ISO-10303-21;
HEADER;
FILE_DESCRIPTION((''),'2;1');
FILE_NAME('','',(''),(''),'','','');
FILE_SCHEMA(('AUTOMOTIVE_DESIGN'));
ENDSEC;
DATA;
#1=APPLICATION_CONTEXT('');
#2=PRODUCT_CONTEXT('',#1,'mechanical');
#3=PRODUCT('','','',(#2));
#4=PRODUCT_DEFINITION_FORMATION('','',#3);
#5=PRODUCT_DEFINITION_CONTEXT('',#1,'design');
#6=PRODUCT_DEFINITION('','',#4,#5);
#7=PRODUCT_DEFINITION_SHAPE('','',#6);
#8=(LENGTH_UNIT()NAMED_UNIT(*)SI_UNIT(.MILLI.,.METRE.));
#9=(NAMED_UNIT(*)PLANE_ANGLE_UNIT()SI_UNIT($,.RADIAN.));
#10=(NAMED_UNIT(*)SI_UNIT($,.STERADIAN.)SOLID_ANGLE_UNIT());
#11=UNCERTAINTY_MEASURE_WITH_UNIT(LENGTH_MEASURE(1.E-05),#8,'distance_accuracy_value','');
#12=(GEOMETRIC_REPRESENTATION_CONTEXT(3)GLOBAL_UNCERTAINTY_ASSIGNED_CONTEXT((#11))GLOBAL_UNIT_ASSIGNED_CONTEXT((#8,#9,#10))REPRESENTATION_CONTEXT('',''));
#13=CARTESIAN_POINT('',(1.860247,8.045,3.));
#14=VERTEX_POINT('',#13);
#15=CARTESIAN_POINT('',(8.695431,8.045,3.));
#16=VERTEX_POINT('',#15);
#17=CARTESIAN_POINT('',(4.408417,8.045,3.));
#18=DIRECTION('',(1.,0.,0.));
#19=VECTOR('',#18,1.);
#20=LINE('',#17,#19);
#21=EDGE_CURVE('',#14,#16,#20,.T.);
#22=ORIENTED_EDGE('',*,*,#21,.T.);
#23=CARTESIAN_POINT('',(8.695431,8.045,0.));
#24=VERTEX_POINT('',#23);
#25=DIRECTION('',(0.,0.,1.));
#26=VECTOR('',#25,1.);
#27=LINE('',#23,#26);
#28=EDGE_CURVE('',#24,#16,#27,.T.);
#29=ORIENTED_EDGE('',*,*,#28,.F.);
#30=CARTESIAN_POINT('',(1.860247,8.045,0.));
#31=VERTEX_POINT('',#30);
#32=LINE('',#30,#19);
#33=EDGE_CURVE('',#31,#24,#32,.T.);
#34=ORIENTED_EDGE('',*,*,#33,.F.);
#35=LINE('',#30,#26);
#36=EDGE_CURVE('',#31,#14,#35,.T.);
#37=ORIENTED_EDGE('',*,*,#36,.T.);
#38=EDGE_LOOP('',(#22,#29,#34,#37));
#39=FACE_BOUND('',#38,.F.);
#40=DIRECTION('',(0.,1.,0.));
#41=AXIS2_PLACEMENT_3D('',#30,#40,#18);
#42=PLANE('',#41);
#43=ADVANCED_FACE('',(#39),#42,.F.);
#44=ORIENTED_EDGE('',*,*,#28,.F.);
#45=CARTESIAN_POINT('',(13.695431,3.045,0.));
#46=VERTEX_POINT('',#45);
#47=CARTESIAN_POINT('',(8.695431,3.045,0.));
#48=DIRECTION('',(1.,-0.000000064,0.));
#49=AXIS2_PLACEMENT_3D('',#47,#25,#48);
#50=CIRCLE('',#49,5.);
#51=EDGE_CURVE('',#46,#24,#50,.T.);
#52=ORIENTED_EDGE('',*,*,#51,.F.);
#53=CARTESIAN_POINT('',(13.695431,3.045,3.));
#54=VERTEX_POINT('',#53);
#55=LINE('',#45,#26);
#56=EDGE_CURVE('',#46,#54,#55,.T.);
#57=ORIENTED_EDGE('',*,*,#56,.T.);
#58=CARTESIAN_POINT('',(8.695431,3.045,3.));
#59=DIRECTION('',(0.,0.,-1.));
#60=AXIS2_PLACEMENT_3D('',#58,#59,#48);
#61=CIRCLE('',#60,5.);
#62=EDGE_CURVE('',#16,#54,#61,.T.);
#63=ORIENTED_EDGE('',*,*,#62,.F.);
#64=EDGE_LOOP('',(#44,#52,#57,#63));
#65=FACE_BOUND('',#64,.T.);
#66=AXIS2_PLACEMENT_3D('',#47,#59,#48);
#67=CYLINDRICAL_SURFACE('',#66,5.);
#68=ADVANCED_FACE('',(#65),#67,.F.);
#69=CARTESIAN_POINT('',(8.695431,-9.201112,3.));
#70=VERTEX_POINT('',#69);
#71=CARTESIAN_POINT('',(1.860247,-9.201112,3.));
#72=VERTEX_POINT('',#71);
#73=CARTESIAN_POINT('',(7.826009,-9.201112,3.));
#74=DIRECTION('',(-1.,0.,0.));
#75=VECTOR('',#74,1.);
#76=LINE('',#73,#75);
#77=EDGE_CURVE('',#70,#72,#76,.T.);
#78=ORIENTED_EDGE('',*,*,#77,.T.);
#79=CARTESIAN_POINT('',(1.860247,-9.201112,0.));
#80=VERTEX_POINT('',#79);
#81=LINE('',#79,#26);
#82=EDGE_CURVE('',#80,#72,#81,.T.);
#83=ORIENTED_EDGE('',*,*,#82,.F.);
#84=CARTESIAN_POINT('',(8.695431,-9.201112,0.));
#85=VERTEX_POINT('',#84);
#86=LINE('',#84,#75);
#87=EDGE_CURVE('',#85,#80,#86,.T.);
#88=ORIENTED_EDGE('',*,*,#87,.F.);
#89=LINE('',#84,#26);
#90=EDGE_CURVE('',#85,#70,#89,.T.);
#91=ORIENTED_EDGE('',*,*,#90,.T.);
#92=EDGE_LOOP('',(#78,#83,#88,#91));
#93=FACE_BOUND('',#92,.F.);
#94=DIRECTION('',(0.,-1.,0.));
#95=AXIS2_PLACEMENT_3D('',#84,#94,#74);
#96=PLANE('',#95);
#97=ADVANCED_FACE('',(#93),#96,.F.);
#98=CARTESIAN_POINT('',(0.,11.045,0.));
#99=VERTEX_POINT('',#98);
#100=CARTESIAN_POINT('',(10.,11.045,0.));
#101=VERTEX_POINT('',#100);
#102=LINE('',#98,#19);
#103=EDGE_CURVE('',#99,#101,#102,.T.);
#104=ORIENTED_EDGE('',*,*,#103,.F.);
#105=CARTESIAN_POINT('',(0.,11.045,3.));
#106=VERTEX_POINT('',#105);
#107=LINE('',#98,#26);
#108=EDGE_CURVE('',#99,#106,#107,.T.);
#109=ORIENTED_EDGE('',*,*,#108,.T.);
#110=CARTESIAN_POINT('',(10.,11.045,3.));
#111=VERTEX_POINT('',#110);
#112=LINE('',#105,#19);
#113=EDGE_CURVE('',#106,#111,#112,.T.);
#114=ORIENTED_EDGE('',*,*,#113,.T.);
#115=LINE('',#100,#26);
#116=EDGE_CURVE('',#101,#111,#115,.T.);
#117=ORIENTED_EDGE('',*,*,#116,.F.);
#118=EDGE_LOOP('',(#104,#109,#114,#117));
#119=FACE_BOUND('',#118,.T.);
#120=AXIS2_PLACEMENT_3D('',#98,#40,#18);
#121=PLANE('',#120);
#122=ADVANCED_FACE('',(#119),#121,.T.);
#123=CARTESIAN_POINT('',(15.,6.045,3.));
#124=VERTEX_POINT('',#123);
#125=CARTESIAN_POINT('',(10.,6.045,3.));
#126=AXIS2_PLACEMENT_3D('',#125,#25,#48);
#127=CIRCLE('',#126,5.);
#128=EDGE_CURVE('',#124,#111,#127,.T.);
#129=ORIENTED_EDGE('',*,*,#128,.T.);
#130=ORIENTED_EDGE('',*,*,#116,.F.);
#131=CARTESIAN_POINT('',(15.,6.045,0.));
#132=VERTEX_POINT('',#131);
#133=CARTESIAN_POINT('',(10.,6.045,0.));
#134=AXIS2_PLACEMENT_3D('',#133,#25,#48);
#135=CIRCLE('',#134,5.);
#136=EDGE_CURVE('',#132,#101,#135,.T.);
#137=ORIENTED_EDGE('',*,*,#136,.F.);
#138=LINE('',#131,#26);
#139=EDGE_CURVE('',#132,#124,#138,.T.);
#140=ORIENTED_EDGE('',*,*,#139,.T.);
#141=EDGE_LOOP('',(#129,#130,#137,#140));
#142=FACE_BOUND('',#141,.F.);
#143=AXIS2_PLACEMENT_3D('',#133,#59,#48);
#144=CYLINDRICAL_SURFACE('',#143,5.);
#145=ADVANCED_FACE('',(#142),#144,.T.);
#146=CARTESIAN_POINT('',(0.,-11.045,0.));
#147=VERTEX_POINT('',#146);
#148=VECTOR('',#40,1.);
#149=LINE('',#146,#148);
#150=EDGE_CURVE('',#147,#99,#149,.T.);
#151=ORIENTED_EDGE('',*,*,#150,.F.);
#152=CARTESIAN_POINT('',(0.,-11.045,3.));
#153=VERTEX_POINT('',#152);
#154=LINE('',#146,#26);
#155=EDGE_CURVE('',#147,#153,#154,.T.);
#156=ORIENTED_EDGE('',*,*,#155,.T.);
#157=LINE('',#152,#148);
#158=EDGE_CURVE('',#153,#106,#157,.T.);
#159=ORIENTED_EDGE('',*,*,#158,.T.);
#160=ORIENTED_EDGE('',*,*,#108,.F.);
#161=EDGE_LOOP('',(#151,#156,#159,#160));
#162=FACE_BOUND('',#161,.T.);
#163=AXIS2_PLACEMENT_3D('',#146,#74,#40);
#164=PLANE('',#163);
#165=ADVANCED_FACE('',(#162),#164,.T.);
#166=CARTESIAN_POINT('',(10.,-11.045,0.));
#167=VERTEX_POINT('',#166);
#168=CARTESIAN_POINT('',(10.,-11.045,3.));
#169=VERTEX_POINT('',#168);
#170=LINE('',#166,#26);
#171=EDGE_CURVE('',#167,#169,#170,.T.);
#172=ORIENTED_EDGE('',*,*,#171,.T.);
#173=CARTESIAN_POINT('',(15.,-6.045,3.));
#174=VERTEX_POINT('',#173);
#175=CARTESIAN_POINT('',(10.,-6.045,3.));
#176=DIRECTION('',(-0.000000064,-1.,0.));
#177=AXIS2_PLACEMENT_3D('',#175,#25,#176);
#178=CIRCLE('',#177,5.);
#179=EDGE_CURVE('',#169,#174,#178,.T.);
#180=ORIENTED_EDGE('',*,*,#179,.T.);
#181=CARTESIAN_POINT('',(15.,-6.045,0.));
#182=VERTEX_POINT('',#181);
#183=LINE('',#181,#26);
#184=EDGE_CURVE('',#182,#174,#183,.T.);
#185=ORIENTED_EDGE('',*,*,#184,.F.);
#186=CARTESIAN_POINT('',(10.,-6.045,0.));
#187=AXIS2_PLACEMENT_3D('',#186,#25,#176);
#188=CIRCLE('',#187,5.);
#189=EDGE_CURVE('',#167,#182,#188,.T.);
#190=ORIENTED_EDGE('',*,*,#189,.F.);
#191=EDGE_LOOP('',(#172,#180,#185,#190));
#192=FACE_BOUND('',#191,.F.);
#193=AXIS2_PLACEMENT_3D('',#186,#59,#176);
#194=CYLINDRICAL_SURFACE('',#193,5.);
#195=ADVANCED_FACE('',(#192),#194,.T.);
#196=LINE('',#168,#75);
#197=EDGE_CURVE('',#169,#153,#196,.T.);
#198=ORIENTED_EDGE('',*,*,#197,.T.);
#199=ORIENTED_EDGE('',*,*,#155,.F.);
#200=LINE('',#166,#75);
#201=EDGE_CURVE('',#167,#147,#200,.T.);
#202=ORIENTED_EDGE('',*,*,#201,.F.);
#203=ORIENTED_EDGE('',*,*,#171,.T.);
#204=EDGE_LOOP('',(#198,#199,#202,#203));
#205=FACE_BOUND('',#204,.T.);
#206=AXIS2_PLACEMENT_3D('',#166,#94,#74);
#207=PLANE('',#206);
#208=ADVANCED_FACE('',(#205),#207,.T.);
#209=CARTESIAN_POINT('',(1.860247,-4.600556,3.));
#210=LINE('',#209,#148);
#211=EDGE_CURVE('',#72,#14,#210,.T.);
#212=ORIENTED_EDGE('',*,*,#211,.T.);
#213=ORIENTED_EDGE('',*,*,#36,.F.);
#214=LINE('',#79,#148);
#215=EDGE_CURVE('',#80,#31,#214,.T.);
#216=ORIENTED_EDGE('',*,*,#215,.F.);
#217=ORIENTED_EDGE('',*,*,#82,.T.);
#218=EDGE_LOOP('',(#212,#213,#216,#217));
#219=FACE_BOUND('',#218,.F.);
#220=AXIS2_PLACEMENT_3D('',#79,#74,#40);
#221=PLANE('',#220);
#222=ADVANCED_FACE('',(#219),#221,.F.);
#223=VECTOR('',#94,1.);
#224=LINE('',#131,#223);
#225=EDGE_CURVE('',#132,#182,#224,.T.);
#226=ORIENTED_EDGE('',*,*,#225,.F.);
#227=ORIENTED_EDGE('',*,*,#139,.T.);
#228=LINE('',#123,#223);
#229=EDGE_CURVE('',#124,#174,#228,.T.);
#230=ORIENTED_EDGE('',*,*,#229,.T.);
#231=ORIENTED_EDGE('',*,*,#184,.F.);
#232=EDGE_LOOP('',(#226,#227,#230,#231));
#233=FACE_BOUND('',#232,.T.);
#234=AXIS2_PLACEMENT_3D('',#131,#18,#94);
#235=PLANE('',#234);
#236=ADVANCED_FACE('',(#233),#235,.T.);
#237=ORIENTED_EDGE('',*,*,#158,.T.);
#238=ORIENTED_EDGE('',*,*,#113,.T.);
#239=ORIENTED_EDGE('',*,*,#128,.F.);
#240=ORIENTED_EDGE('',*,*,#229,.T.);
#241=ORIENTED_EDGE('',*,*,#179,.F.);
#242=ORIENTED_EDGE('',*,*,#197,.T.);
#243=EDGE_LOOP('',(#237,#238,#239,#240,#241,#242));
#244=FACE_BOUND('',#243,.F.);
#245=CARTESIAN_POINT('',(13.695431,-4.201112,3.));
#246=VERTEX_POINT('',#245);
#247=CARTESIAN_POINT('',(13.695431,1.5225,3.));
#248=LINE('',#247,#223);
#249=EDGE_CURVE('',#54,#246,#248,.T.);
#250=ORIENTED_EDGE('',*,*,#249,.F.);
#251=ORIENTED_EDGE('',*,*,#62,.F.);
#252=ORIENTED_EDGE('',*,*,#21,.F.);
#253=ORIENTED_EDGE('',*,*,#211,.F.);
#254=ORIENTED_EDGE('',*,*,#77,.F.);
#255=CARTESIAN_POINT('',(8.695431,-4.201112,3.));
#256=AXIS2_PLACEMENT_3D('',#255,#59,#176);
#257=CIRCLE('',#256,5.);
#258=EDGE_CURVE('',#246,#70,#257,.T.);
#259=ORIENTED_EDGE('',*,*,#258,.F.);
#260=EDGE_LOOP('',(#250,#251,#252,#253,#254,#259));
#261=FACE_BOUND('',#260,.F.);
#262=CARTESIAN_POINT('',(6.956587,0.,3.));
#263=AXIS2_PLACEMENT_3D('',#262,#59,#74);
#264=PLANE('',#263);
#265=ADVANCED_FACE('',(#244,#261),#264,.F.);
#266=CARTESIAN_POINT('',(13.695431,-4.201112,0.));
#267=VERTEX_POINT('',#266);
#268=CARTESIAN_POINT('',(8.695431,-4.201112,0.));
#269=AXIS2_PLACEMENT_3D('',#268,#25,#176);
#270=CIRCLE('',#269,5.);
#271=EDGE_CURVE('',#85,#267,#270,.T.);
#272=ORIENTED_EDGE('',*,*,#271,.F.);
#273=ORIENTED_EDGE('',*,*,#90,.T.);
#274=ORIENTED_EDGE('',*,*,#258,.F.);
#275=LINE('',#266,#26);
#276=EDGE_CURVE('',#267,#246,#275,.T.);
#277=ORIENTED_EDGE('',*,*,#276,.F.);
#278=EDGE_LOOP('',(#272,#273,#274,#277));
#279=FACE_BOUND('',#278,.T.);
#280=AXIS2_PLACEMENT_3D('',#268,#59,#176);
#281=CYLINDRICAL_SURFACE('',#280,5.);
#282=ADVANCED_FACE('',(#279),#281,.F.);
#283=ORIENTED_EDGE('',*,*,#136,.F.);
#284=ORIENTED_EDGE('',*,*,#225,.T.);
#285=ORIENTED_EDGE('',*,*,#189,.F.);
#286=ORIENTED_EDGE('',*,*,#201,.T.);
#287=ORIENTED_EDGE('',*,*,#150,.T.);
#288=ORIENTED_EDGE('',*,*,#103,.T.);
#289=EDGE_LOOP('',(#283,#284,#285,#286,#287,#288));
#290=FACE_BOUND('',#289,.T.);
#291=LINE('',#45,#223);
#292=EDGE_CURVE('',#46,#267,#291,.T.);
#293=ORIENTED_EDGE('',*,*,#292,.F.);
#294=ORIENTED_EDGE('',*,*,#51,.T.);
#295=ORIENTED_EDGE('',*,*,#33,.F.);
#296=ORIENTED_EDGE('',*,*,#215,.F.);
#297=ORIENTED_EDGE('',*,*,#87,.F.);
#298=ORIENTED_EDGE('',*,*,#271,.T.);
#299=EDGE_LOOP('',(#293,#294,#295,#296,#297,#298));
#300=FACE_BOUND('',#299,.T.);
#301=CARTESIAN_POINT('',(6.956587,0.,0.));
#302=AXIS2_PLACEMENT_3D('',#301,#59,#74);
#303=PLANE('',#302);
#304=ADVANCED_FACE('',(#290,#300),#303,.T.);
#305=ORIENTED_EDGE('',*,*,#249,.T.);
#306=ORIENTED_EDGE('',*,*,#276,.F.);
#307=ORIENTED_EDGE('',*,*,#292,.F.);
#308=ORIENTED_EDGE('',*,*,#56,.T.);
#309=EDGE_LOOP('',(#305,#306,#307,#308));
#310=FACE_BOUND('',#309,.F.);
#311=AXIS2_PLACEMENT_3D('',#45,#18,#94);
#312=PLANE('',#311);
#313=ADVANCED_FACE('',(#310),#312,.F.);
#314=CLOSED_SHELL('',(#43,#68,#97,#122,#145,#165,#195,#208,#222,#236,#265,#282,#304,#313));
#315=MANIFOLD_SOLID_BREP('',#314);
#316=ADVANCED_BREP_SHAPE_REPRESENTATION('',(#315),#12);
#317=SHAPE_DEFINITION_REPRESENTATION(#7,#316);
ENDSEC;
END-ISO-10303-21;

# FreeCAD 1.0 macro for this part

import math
import FreeCAD as App
import Part
import Sketcher
from FreeCAD import Vector

doc = App.newDocument("Part")
body = doc.addObject("PartDesign::Body", "Body")

# Sketch on XY plane
sketch1 = doc.addObject("Sketcher::SketchObject", "Sketch")
body.addObject(sketch1)
sketch1.AttachmentSupport = (doc.XY_Plane, [""])
sketch1.MapMode = "FlatFace"
sketch1.addGeometry([
    Part.LineSegment(Vector(10, 11.045, 0), Vector(0, 11.045, 0)),  # 0
    Part.LineSegment(Vector(0, 11.045, 0), Vector(0, -11.045, 0)),  # 1
    Part.LineSegment(Vector(0, -11.045, 0), Vector(10, -11.045, 0)),  # 2
    Part.ArcOfCircle(Part.Circle(Vector(10, -6.045, 0), Vector(0, 0, 1), 5), math.radians(-90.000004), math.radians(0.000004)),  # 3
    Part.LineSegment(Vector(15, -6.045, 0), Vector(15, 6.045, 0)),  # 4
    Part.ArcOfCircle(Part.Circle(Vector(10, 6.045, 0), Vector(0, 0, 1), 5), math.radians(-0.000004), math.radians(90.000004)),  # 5
], False)
sketch1.addConstraint([
    Sketcher.Constraint("Coincident", 0, 2, 1, 1),
    Sketcher.Constraint("Coincident", 1, 2, 2, 1),
    Sketcher.Constraint("Tangent", 2, 2, 3, 1),
    Sketcher.Constraint("Tangent", 3, 2, 4, 1),
    Sketcher.Constraint("Tangent", 4, 2, 5, 1),
    Sketcher.Constraint("Tangent", 5, 2, 0, 1),
    Sketcher.Constraint("Horizontal", 0),
    Sketcher.Constraint("Vertical", 1),
    Sketcher.Constraint("Horizontal", 2),
    Sketcher.Constraint("Vertical", 4),
    Sketcher.Constraint("Equal", 3, 5),
    Sketcher.Constraint("Symmetric", 0, 2, 1, 2, -1, 1),
    Sketcher.Constraint("Radius", 3, 5.0),
    Sketcher.Constraint("DistanceX", 0, 2, 0, 1, 10.0),
    Sketcher.Constraint("DistanceY", 1, 2, 1, 1, 22.09),
])
pad1 = doc.addObject("PartDesign::Pad", "Pad")
body.addObject(pad1)
pad1.Profile = sketch1
pad1.Length = 3

# Sketch on XY plane
sketch2 = doc.addObject("Sketcher::SketchObject", "Sketch001")
body.addObject(sketch2)
sketch2.AttachmentSupport = (doc.XY_Plane, [""])
sketch2.MapMode = "FlatFace"
sketch2.addGeometry([
    Part.LineSegment(Vector(8.695431, 8.045, 0), Vector(1.860247, 8.045, 0)),  # 0
    Part.LineSegment(Vector(1.860247, 8.045, 0), Vector(1.860247, -9.201112, 0)),  # 1
    Part.LineSegment(Vector(1.860247, -9.201112, 0), Vector(8.695431, -9.201112, 0)),  # 2
    Part.ArcOfCircle(Part.Circle(Vector(8.695431, -4.201112, 0), Vector(0, 0, 1), 5), math.radians(-90.000004), math.radians(0.000004)),  # 3
    Part.LineSegment(Vector(13.695431, -4.201112, 0), Vector(13.695431, 3.045, 0)),  # 4
    Part.ArcOfCircle(Part.Circle(Vector(8.695431, 3.045, 0), Vector(0, 0, 1), 5), math.radians(-0.000004), math.radians(90.000004)),  # 5
], False)
sketch2.addConstraint([
    Sketcher.Constraint("Coincident", 0, 2, 1, 1),
    Sketcher.Constraint("Coincident", 1, 2, 2, 1),
    Sketcher.Constraint("Tangent", 2, 2, 3, 1),
    Sketcher.Constraint("Tangent", 3, 2, 4, 1),
    Sketcher.Constraint("Tangent", 4, 2, 5, 1),
    Sketcher.Constraint("Tangent", 5, 2, 0, 1),
    Sketcher.Constraint("Horizontal", 0),
    Sketcher.Constraint("Vertical", 1),
    Sketcher.Constraint("Horizontal", 2),
    Sketcher.Constraint("Vertical", 4),
    Sketcher.Constraint("Equal", 3, 5),
    Sketcher.Constraint("Radius", 3, 5.0),
    Sketcher.Constraint("DistanceY", -1, 1, 5, 3, 3.045),
    Sketcher.Constraint("DistanceY", 1, 2, 1, 1, 17.246112),
    Sketcher.Constraint("DistanceX", 0, 2, 0, 1, 6.835184),
    Sketcher.Constraint("DistanceX", -1, 1, 3, 3, 8.695431),
])
pocket1 = doc.addObject("PartDesign::Pocket", "Pocket")
body.addObject(pocket1)
pocket1.Profile = sketch2
pocket1.Type = "ThroughAll"
pocket1.Reversed = True

doc.recompute()
